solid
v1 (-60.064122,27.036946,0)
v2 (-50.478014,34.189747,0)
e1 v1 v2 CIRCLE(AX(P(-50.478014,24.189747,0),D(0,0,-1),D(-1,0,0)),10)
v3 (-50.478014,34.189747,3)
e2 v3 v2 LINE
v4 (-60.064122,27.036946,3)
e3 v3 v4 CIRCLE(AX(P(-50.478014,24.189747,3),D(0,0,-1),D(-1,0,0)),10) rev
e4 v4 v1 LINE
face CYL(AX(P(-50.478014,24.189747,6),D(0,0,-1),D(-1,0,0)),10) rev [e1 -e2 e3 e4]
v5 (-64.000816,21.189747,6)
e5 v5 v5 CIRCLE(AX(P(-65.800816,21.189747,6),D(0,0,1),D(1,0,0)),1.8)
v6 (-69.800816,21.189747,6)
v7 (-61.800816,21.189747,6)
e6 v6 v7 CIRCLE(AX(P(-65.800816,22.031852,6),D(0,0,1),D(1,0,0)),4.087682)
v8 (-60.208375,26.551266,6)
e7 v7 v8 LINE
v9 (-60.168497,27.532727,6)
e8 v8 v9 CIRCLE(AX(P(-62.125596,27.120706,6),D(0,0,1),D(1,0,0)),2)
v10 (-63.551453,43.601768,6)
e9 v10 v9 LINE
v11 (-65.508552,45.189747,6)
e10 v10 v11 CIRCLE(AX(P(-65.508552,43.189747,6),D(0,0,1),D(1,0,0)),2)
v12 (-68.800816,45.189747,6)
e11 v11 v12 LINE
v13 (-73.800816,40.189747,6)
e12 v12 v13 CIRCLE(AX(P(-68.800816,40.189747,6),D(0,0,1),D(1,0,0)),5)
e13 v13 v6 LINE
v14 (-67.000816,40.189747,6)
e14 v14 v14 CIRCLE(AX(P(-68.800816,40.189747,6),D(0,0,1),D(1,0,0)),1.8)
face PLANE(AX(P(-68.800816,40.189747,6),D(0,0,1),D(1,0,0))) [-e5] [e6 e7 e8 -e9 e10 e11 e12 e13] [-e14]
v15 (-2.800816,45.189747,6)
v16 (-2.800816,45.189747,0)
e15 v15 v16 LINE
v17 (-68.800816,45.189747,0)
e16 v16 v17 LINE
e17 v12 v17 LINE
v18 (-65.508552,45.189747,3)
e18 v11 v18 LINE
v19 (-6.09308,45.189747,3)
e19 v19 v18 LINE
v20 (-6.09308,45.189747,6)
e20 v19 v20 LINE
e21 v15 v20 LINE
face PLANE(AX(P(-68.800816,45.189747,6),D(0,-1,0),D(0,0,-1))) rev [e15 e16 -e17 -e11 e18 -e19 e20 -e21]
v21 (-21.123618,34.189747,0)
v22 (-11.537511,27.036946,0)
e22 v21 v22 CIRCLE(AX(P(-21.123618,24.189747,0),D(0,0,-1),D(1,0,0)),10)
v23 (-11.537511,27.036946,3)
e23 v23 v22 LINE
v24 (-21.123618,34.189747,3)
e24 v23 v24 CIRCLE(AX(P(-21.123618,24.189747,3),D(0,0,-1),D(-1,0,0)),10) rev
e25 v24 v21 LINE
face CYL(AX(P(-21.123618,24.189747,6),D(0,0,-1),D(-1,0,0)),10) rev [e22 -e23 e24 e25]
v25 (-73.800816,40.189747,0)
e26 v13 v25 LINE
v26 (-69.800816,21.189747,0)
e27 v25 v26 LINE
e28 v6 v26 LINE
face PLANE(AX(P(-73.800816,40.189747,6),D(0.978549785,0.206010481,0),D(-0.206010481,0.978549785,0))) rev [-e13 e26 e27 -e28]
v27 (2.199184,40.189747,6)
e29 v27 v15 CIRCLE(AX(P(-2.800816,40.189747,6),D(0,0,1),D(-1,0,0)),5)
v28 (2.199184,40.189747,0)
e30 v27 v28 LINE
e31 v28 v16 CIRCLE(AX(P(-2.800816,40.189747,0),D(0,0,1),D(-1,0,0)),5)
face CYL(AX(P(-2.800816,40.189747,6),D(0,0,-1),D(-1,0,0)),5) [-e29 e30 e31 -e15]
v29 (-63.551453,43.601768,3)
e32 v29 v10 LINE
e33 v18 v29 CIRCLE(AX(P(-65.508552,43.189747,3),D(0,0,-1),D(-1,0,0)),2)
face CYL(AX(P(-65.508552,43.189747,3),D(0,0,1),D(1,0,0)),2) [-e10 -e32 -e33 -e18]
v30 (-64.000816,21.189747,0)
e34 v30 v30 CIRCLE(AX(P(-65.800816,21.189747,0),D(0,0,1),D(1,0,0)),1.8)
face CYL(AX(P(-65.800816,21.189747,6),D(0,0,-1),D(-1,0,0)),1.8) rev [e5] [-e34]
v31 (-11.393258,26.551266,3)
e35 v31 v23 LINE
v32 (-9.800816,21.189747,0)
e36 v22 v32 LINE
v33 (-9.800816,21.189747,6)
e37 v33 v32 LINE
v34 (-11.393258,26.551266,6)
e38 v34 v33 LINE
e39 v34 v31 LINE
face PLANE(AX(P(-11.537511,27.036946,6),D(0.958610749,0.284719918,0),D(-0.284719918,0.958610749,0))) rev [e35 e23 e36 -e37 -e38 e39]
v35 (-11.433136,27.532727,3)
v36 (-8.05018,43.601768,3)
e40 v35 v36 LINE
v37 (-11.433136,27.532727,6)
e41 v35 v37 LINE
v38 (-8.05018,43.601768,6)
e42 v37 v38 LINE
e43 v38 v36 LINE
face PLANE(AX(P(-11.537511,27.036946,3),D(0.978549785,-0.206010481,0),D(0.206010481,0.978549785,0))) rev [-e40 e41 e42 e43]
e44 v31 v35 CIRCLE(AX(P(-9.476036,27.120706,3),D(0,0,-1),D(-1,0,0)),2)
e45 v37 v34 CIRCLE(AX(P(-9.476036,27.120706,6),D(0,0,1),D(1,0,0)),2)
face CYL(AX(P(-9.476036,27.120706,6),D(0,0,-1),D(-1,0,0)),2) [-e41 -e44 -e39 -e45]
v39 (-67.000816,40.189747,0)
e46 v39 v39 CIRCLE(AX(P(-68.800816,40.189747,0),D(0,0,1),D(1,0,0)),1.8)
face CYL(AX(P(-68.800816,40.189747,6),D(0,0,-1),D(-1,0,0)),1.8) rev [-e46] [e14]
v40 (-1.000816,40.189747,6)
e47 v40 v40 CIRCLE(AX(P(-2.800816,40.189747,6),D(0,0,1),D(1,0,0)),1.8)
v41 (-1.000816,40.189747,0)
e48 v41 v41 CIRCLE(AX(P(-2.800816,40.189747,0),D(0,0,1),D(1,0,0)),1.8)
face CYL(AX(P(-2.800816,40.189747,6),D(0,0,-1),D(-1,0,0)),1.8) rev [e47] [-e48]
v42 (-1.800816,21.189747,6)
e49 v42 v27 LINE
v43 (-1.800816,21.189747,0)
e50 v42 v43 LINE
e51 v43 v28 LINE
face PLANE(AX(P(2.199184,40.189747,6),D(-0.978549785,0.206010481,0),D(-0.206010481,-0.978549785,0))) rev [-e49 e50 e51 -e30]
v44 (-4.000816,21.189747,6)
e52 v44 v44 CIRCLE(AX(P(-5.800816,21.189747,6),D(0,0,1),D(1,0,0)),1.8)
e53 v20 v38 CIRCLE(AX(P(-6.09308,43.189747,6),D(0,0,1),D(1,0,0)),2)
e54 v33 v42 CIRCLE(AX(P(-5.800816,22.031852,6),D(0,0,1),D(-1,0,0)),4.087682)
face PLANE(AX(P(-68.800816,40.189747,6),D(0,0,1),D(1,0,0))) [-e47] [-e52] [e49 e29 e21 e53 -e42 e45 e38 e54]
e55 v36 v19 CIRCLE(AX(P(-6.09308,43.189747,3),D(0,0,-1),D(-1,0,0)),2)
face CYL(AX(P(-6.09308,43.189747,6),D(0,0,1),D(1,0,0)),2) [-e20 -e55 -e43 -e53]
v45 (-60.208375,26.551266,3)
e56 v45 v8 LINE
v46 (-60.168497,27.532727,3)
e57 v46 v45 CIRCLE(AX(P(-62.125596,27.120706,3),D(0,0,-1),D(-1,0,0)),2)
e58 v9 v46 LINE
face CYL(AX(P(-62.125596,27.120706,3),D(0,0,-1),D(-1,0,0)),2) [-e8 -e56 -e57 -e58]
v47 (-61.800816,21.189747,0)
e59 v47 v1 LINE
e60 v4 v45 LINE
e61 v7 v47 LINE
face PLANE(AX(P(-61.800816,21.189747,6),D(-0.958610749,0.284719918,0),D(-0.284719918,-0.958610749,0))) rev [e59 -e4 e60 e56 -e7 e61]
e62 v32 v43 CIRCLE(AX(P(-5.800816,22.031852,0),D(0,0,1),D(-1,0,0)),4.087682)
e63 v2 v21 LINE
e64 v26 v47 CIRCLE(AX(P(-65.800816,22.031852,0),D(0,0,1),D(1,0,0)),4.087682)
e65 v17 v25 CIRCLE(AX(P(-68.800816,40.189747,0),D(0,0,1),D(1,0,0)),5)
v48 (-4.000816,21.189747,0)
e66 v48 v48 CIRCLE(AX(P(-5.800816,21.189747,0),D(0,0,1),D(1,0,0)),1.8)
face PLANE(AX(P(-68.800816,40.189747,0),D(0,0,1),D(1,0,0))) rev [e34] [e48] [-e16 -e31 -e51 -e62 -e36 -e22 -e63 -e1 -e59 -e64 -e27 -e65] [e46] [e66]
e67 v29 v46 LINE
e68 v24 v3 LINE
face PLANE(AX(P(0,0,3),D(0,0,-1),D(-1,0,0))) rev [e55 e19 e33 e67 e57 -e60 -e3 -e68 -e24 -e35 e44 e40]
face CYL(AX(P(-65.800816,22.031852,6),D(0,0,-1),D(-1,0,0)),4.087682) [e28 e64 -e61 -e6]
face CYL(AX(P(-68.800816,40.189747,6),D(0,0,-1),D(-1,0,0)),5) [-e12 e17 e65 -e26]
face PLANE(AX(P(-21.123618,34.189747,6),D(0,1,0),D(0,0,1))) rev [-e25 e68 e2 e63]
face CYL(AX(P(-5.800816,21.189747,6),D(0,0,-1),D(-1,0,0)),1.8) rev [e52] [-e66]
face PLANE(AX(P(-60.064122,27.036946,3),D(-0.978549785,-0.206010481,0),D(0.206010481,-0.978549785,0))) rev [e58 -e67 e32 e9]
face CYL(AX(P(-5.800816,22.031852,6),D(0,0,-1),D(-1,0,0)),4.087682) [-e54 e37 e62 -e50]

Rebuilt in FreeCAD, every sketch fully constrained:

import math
import FreeCAD as App
import Part
import Sketcher


def edges_at(feature, points):
    """Names of the edges that pass closest to the given points."""
    edges = feature.Shape.Edges
    near = lambda p: min(range(len(edges)), key=lambda i: edges[i].distToShape(Part.Vertex(*p))[0])
    return sorted({f"Edge{near(p) + 1}" for p in points})


def add_polygon(sketch, points):
    """Adds a closed chain of lines whose ends are joined by coincident constraints."""
    first, n = sketch.GeometryCount, len(points)
    for a, b in zip(points, points[1:] + points[:1]):
        sketch.addGeometry(Part.LineSegment(App.Vector(*a, 0), App.Vector(*b, 0)), False)
    for i in range(n):
        sketch.addConstraint(Sketcher.Constraint("Coincident", first + i, 2, first + (i + 1) % n, 1))

doc = App.newDocument("Part")
body = doc.addObject("PartDesign::Body", "Body")

# Sketch on XY plane
sketch1 = body.newObject("Sketcher::SketchObject", "Sketch")
sketch1.AttachmentSupport = (doc.getObject("XY_Plane"), [""])
sketch1.MapMode = "FlatFace"
sketch1.addGeometry(Part.LineSegment(App.Vector(-2.8, 45.2, 0), App.Vector(-68.8, 45.2, 0)), False)
sketch1.addGeometry(Part.ArcOfCircle(Part.Circle(App.Vector(-68.8, 40.2, 0), App.Vector(0, 0, 1), 5), math.radians(90), math.radians(180)), False)
sketch1.addGeometry(Part.LineSegment(App.Vector(-73.8, 40.2, 0), App.Vector(-69.8, 21.2, 0)), False)
sketch1.addGeometry(Part.ArcOfCircle(Part.Circle(App.Vector(-65.8, 22, 0), App.Vector(0, 0, 1), 4.1), math.radians(-168), math.radians(-12)), False)
sketch1.addGeometry(Part.LineSegment(App.Vector(-61.8, 21.2, 0), App.Vector(-60.1, 27, 0)), False)
sketch1.addGeometry(Part.ArcOfCircle(Part.Circle(App.Vector(-50.5, 24.2, 0), App.Vector(0, 0, 1), 10), math.radians(90), math.radians(163)), False)
sketch1.addGeometry(Part.LineSegment(App.Vector(-50.5, 34.2, 0), App.Vector(-21.1, 34.2, 0)), False)
sketch1.addGeometry(Part.ArcOfCircle(Part.Circle(App.Vector(-21.1, 24.2, 0), App.Vector(0, 0, 1), 10), math.radians(17), math.radians(90)), False)
sketch1.addGeometry(Part.LineSegment(App.Vector(-11.5, 27, 0), App.Vector(-9.8, 21.2, 0)), False)
sketch1.addGeometry(Part.ArcOfCircle(Part.Circle(App.Vector(-5.8, 22, 0), App.Vector(0, 0, 1), 4.1), math.radians(-168), math.radians(-12)), False)
sketch1.addGeometry(Part.LineSegment(App.Vector(-1.8, 21.2, 0), App.Vector(2.2, 40.2, 0)), False)
sketch1.addGeometry(Part.ArcOfCircle(Part.Circle(App.Vector(-2.8, 40.2, 0), App.Vector(0, 0, 1), 5), math.radians(0), math.radians(90)), False)
sketch1.addGeometry(Part.Circle(App.Vector(-5.8, 21.2, 0), App.Vector(0, 0, 1), 1.8), False)
sketch1.addGeometry(Part.Circle(App.Vector(-65.8, 21.2, 0), App.Vector(0, 0, 1), 1.8), False)
sketch1.addGeometry(Part.Circle(App.Vector(-2.8, 40.2, 0), App.Vector(0, 0, 1), 1.8), False)
sketch1.addGeometry(Part.Circle(App.Vector(-68.8, 40.2, 0), App.Vector(0, 0, 1), 1.8), False)
sketch1.addConstraint(Sketcher.Constraint("Tangent", 0, 2, 1, 1))
sketch1.addConstraint(Sketcher.Constraint("Coincident", 1, 2, 2, 1))
sketch1.addConstraint(Sketcher.Constraint("Tangent", 2, 2, 3, 1))
sketch1.addConstraint(Sketcher.Constraint("Coincident", 3, 2, 4, 1))
sketch1.addConstraint(Sketcher.Constraint("Tangent", 4, 2, 5, 2))
sketch1.addConstraint(Sketcher.Constraint("Tangent", 5, 1, 6, 1))
sketch1.addConstraint(Sketcher.Constraint("Tangent", 6, 2, 7, 2))
sketch1.addConstraint(Sketcher.Constraint("Tangent", 7, 1, 8, 1))
sketch1.addConstraint(Sketcher.Constraint("Coincident", 8, 2, 9, 1))
sketch1.addConstraint(Sketcher.Constraint("Tangent", 9, 2, 10, 1))
sketch1.addConstraint(Sketcher.Constraint("Coincident", 10, 2, 11, 1))
sketch1.addConstraint(Sketcher.Constraint("Tangent", 11, 2, 0, 1))
sketch1.addConstraint(Sketcher.Constraint("Horizontal", 0))
sketch1.addConstraint(Sketcher.Constraint("Horizontal", 6))
sketch1.addConstraint(Sketcher.Constraint("Coincident", 14, 3, 11, 3))
sketch1.addConstraint(Sketcher.Constraint("Coincident", 15, 3, 1, 3))
sketch1.addConstraint(Sketcher.Constraint("Equal", 5, 7))
sketch1.addConstraint(Sketcher.Constraint("Equal", 3, 9))
sketch1.addConstraint(Sketcher.Constraint("Equal", 1, 11))
sketch1.addConstraint(Sketcher.Constraint("Equal", 12, 13))
sketch1.addConstraint(Sketcher.Constraint("Equal", 13, 14))
sketch1.addConstraint(Sketcher.Constraint("Equal", 14, 15))
sketch1.addConstraint(Sketcher.Constraint("Horizontal", 3, 3, 9, 3))
sketch1.addConstraint(Sketcher.Constraint("Horizontal", 12, 3, 13, 3))
sketch1.addConstraint(Sketcher.Constraint("Horizontal", 15, 3, 1, 2))
sketch1.addConstraint(Sketcher.Constraint("Horizontal", 13, 3, 2, 2))
sketch1.addConstraint(Sketcher.Constraint("Horizontal", 2, 2, 3, 2))
sketch1.addConstraint(Sketcher.Constraint("Horizontal", 4, 2, 7, 1))
sketch1.addConstraint(Sketcher.Constraint("Horizontal", 3, 2, 8, 2))
sketch1.addConstraint(Sketcher.Constraint("Horizontal", 8, 2, 9, 2))
sketch1.addConstraint(Sketcher.Constraint("Horizontal", 1, 2, 10, 2))
sketch1.addConstraint(Sketcher.Constraint("Vertical", 9, 3, 12, 3))
sketch1.addConstraint(Sketcher.Constraint("Vertical", 3, 3, 13, 3))
sketch1.addConstraint(Sketcher.Constraint("Radius", 1, 5.0))
sketch1.addConstraint(Sketcher.Constraint("Radius", 5, 10.0))
sketch1.addConstraint(Sketcher.Constraint("Diameter", 12, 3.6))
sketch1.addConstraint(Sketcher.Constraint("DistanceX", 0, 2, 0, 1, 66.0))
sketch1.addConstraint(Sketcher.Constraint("DistanceX", 1, 3, 3, 3, 3.0))
sketch1.addConstraint(Sketcher.Constraint("DistanceY", 5, 3, 1, 3, 16.0))
sketch1.addConstraint(Sketcher.Constraint("DistanceY", 12, 3, 7, 3, 3.0))
sketch1.addConstraint(Sketcher.Constraint("DistanceX", 2, 2, 13, 3, 4.0))
sketch1.addConstraint(Sketcher.Constraint("DistanceY", 3, 2, 4, 2, 5.847199))
sketch1.addConstraint(Sketcher.Constraint("DistanceY", -1, 1, 3, 3, 22.031852))
sketch1.addConstraint(Sketcher.Constraint("DistanceX", 7, 3, -1, 1, 21.123618))
pad1 = body.newObject("PartDesign::Pad", "Pad")
pad1.Profile = sketch1
pad1.Length = 6

# Sketch on XY plane
sketch2 = body.newObject("Sketcher::SketchObject", "Sketch001")
sketch2.AttachmentSupport = (doc.getObject("XY_Plane"), [""])
sketch2.MapMode = "FlatFace"
sketch2.AttachmentOffset = App.Placement(App.Vector(0, 0, 6), App.Rotation())
add_polygon(sketch2, [(-60, 27), (-12, 27), (-8, 45), (-64, 45)])  # lines 0-3
sketch2.addConstraint(Sketcher.Constraint("Horizontal", 0))
sketch2.addConstraint(Sketcher.Constraint("Horizontal", 2))
sketch2.addConstraint(Sketcher.Constraint("Equal", 1, 3))
sketch2.addConstraint(Sketcher.Constraint("DistanceX", 0, 1, 0, 2, 48.526611))
sketch2.addConstraint(Sketcher.Constraint("DistanceY", 0, 2, 1, 2, 18.152801))
sketch2.addConstraint(Sketcher.Constraint("DistanceX", 2, 2, 2, 1, 56.169895))
sketch2.addConstraint(Sketcher.Constraint("DistanceX", 0, 2, -1, 1, 11.537511))
sketch2.addConstraint(Sketcher.Constraint("DistanceY", -1, 1, 0, 2, 27.036946))
pocket1 = body.newObject("PartDesign::Pocket", "Pocket")
pocket1.Profile = sketch2
pocket1.Length = 3
doc.recompute()

fillet = body.newObject("PartDesign::Fillet", "Fillet")
fillet.Base = (pocket1, edges_at(pocket1, [
    (-11.538, 27.037, 4.5),
    (-60.064, 27.037, 4.5),
    (-63.886, 45.19, 4.5),
    (-7.716, 45.19, 4.5),
]))
fillet.Radius = 2

doc.recompute()
